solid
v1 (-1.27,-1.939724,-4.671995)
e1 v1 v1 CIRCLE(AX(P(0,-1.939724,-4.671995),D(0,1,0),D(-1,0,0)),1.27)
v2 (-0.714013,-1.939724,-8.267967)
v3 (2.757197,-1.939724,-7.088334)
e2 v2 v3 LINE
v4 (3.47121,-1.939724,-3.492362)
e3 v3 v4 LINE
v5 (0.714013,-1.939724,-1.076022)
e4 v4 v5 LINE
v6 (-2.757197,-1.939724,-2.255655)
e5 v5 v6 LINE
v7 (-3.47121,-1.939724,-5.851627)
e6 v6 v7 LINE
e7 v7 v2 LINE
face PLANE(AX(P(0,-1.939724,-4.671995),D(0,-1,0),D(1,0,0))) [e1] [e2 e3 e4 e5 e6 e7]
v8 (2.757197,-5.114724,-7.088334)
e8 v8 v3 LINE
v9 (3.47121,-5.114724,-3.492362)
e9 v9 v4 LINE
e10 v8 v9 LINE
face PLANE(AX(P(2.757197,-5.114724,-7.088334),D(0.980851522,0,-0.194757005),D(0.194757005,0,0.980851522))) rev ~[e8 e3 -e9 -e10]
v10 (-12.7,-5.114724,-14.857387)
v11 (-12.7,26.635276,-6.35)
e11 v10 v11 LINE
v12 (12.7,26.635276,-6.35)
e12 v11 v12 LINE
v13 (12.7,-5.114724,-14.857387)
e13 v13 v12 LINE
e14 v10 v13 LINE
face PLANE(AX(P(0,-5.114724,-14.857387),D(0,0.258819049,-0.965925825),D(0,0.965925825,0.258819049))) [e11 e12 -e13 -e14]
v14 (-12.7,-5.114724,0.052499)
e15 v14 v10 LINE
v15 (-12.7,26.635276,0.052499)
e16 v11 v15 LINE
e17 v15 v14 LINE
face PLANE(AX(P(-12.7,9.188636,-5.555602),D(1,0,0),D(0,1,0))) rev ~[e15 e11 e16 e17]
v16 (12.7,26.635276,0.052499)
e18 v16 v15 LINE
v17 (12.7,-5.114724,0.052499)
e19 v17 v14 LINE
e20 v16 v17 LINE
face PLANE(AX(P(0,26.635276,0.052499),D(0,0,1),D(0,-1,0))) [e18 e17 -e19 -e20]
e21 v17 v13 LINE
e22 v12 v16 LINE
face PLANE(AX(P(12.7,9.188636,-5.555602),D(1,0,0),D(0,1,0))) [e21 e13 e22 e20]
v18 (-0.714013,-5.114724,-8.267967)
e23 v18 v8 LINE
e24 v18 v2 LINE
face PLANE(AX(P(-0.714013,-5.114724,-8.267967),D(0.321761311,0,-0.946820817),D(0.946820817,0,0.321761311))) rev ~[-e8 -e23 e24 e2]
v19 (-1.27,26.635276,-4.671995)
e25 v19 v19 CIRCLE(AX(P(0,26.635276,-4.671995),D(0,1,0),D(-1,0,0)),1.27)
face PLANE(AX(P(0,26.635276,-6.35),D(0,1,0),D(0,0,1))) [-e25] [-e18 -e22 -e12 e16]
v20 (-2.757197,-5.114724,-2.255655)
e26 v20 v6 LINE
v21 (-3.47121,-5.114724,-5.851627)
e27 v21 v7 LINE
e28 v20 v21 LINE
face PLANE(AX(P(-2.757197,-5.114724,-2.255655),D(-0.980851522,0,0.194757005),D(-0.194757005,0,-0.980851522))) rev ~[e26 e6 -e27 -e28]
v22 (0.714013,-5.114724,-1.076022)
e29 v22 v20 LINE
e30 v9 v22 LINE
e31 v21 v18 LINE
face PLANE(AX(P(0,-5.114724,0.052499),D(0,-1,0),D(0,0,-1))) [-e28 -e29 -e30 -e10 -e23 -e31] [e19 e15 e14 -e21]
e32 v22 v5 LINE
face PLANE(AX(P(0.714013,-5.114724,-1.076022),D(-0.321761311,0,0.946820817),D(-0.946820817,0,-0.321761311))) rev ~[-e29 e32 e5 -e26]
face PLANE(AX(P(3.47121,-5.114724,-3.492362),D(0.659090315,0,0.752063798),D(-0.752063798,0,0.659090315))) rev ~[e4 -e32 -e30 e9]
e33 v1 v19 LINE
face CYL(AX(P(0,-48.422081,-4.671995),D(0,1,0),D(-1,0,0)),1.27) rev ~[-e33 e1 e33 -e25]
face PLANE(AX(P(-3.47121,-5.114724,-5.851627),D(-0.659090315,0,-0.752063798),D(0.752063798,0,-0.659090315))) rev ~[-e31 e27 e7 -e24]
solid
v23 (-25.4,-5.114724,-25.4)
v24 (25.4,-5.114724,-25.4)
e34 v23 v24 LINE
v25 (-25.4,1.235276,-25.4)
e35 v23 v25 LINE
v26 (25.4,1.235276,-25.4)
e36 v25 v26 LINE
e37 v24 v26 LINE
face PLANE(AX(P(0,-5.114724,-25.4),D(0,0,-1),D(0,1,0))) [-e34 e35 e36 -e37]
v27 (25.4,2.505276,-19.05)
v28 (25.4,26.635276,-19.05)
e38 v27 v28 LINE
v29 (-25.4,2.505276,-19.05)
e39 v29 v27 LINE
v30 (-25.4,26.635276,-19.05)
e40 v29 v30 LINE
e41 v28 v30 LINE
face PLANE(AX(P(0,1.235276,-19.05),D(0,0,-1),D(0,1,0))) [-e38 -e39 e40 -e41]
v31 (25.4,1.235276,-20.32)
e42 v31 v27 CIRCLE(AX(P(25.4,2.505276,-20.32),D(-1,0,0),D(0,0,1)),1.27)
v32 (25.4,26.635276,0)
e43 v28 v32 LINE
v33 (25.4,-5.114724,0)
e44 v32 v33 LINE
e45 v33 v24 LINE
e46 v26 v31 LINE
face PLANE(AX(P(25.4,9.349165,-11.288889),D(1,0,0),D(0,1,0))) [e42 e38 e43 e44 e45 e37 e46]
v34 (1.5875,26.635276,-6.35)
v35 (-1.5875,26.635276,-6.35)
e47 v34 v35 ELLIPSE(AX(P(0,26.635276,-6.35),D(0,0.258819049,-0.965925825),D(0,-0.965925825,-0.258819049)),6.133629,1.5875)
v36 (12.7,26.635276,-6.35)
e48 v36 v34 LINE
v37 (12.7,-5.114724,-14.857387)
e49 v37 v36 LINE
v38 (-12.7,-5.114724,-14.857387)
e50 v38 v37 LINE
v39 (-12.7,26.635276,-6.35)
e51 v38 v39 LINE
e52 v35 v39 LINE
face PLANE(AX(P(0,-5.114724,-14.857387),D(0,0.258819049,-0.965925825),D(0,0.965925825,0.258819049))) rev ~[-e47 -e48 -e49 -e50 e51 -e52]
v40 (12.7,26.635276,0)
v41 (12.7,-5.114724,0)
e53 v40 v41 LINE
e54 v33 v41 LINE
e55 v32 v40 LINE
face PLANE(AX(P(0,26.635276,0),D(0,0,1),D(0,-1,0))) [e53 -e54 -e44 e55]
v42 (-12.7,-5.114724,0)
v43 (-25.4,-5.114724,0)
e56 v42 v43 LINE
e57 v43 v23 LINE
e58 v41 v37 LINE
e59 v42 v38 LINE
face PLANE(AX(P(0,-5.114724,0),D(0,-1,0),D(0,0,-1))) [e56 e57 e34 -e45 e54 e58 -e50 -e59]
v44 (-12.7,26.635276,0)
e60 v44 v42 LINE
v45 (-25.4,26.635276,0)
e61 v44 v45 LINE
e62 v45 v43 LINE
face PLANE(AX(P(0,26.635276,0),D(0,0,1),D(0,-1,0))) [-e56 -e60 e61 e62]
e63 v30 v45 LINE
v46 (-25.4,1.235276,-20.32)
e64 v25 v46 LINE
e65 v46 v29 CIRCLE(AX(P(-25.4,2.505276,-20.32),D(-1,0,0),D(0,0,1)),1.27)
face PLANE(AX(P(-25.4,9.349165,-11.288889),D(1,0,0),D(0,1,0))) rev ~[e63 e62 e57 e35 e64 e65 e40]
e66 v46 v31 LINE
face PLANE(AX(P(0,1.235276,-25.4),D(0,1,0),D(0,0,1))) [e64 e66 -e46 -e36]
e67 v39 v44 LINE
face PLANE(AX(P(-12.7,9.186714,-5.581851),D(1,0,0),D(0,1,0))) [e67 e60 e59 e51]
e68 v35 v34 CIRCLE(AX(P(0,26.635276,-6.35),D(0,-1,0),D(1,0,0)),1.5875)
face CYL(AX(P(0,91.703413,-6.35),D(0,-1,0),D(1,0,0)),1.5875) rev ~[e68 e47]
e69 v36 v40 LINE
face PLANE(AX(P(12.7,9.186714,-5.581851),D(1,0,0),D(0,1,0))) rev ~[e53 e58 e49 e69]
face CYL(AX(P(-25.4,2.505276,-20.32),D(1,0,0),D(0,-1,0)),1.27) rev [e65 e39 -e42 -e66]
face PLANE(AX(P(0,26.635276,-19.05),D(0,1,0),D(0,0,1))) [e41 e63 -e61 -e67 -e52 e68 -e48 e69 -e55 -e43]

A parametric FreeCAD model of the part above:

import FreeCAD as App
import Part
import Sketcher
from FreeCAD import Vector
Q = App.Units.Quantity


def edges_at(feature, points):
    """Names of the edges that pass closest to the given points."""
    edges = feature.Shape.Edges
    near = lambda p: min(range(len(edges)), key=lambda i: edges[i].distToShape(Part.Vertex(*p))[0])
    return sorted({f"Edge{near(p) + 1}" for p in points})


def add_polygon(sketch, points):
    """Adds a closed chain of lines whose ends are joined by coincident constraints."""
    first, n = sketch.GeometryCount, len(points)
    for a, b in zip(points, points[1:] + points[:1]):
        sketch.addGeometry(Part.LineSegment(App.Vector(*a, 0), App.Vector(*b, 0)), False)
    for i in range(n):
        sketch.addConstraint(Sketcher.Constraint("Coincident", first + i, 2, first + (i + 1) % n, 1))

doc = App.newDocument("Part")
body = doc.addObject("PartDesign::Body", "Body")

# Sketch on YZ plane
sketch1 = body.newObject("Sketcher::SketchObject", "Sketch")
sketch1.AttachmentSupport = (doc.getObject("YZ_Plane"), [""])
sketch1.MapMode = "FlatFace"
add_polygon(sketch1, [(-5, 0), (-5, -25), (1, -25), (1, -19), (27, -19), (27, 0)])  # lines 0-5
sketch1.addConstraint(Sketcher.Constraint("Vertical", 0))
sketch1.addConstraint(Sketcher.Constraint("Horizontal", 1))
sketch1.addConstraint(Sketcher.Constraint("Vertical", 2))
sketch1.addConstraint(Sketcher.Constraint("Horizontal", 3))
sketch1.addConstraint(Sketcher.Constraint("Vertical", 4))
sketch1.addConstraint(Sketcher.Constraint("Horizontal", 5))
sketch1.addConstraint(Sketcher.Constraint("PointOnObject", 4, 2, -1))
sketch1.addConstraint(Sketcher.Constraint("Equal", 3, 0))
sketch1.addConstraint(Sketcher.Constraint("Equal", 1, 2))
sketch1.addConstraint(Sketcher.Constraint("DistanceX", 3, 1, 3, 2, Q("1 in")))
sketch1.addConstraint(Sketcher.Constraint("DistanceX", 1, 1, 1, 2, Q("0.25 in")))
sketch1.addConstraint(Sketcher.Constraint("DistanceX", 0, 2, -1, 1, 5.114724))
pad1 = body.newObject("PartDesign::Pad", "Pad")
pad1.Profile = sketch1
pad1.Length = Q("2 in")
pad1.Midplane = True

# Sketch on YZ plane
sketch2 = body.newObject("Sketcher::SketchObject", "Sketch001")
sketch2.AttachmentSupport = (doc.getObject("YZ_Plane"), [""])
sketch2.MapMode = "FlatFace"
add_polygon(sketch2, [(27, 0), (-5, 0), (-5, -15), (27, -6)])  # lines 0-3
sketch2.addConstraint(Sketcher.Constraint("Horizontal", 0))
sketch2.addConstraint(Sketcher.Constraint("Vertical", 1))
sketch2.addConstraint(Sketcher.Constraint("Vertical", 3))
sketch2.addConstraint(Sketcher.Constraint("PointOnObject", 0, 2, -1))
sketch2.addConstraint(Sketcher.Constraint("Angle", 2, Q("15 deg")))
sketch2.addConstraint(Sketcher.Constraint("DistanceX", 0, 2, 0, 1, Q("1.25 in")))
sketch2.addConstraint(Sketcher.Constraint("DistanceY", 3, 1, 3, 2, Q("0.25 in")))
sketch2.addConstraint(Sketcher.Constraint("DistanceX", 0, 2, -1, 1, 5.114724))
pocket1 = body.newObject("PartDesign::Pocket", "Pocket")
pocket1.Profile = sketch2
pocket1.Length = Q("1 in")
pocket1.Midplane = True

# Sketch on XZ plane
sketch3 = body.newObject("Sketcher::SketchObject", "Sketch002")
sketch3.AttachmentSupport = (doc.getObject("XZ_Plane"), [""])
sketch3.MapMode = "FlatFace"
sketch3.AttachmentOffset = App.Placement(Vector(0, 0, -26.635276), App.Rotation())
sketch3.addGeometry(Part.Circle(Vector(0, -6.3, 0), Vector(0, 0, 1), 1.6), False)
sketch3.addConstraint(Sketcher.Constraint("PointOnObject", 0, 3, -2))
sketch3.addConstraint(Sketcher.Constraint("Diameter", 0, Q("0.125 in")))
sketch3.addConstraint(Sketcher.Constraint("DistanceY", 0, 3, -1, 1, Q("0.25 in")))
doc.recompute()
hole = body.newObject("PartDesign::Hole", "Hole")
hole.Profile = sketch3
hole.ThreadType = "None"
hole.Diameter = Q("0.125 in")
hole.DepthType = "ThroughAll"
hole.Reversed = True
doc.recompute()

fillet = body.newObject("PartDesign::Fillet", "Fillet")
fillet.Base = (hole, edges_at(hole, [(0, 1.235, -19.05)]))
fillet.Radius = Q("0.05 in")
body2 = doc.addObject("PartDesign::Body", "Body001")

# Sketch on YZ plane
sketch4 = body2.newObject("Sketcher::SketchObject", "Sketch003")
sketch4.AttachmentSupport = (doc.getObject("YZ_Plane001"), [""])
sketch4.MapMode = "FlatFace"
add_polygon(sketch4, [(-5, 0), (-5, -15), (27, -6), (27, 0)])  # lines 0-3
sketch4.addConstraint(Sketcher.Constraint("Vertical", 0))
sketch4.addConstraint(Sketcher.Constraint("Vertical", 2))
sketch4.addConstraint(Sketcher.Constraint("Horizontal", 3))
sketch4.addConstraint(Sketcher.Constraint("Angle", 1, Q("15 deg")))
sketch4.addConstraint(Sketcher.Constraint("DistanceX", 3, 2, 3, 1, Q("1.25 in")))
sketch4.addConstraint(Sketcher.Constraint("DistanceY", 1, 2, -1, 1, Q("0.25 in")))
sketch4.addConstraint(Sketcher.Constraint("DistanceY", 2, 1, 2, 2, 6.402499))
sketch4.addConstraint(Sketcher.Constraint("DistanceX", 0, 2, -1, 1, 5.114724))
pad2 = body2.newObject("PartDesign::Pad", "Pad001")
pad2.Profile = sketch4
pad2.Length = Q("1 in")
pad2.Midplane = True

# Sketch on XZ plane
sketch5 = body2.newObject("Sketcher::SketchObject", "Sketch004")
sketch5.AttachmentSupport = (doc.getObject("XZ_Plane001"), [""])
sketch5.MapMode = "FlatFace"
sketch5.AttachmentOffset = App.Placement(Vector(0, 0, 5.114724), App.Rotation())
sketch5.addGeometry(Part.Circle(Vector(0, -4.7, 0), Vector(0, 0, 1), 1.3), False)
sketch5.addConstraint(Sketcher.Constraint("PointOnObject", 0, 3, -2))
sketch5.addConstraint(Sketcher.Constraint("Diameter", 0, Q("0.1 in")))
sketch5.addConstraint(Sketcher.Constraint("DistanceY", 0, 3, -1, 1, 4.671995))
doc.recompute()
hole2 = body2.newObject("PartDesign::Hole", "Hole001")
hole2.Profile = sketch5
hole2.ThreadType = "None"
hole2.Diameter = Q("0.1 in")
hole2.DepthType = "ThroughAll"

# Sketch on XZ plane
sketch6 = body2.newObject("Sketcher::SketchObject", "Sketch005")
sketch6.AttachmentSupport = (doc.getObject("XZ_Plane001"), [""])
sketch6.MapMode = "FlatFace"
sketch6.AttachmentOffset = App.Placement(Vector(0, 0, 5.114724), App.Rotation())
add_polygon(sketch6, [(3.5, -3.5), (0.7, -1.1), (-2.8, -2.3), (-3.5, -5.9), (-0.7, -8.3), (2.8, -7.1)])  # lines 0-5
sketch6.addConstraint(Sketcher.Constraint("Parallel", 0, 3))
sketch6.addConstraint(Sketcher.Constraint("Parallel", 1, 4))
sketch6.addConstraint(Sketcher.Constraint("Parallel", 2, 5))
sketch6.addConstraint(Sketcher.Constraint("Equal", 0, 1))
sketch6.addConstraint(Sketcher.Constraint("Equal", 1, 2))
sketch6.addConstraint(Sketcher.Constraint("Equal", 2, 3))
sketch6.addConstraint(Sketcher.Constraint("DistanceX", 2, 2, -1, 1, 3.47121))
sketch6.addConstraint(Sketcher.Constraint("DistanceX", -1, 1, 5, 2, 3.47121))
sketch6.addConstraint(Sketcher.Constraint("DistanceY", 5, 2, -1, 1, 3.492362))
sketch6.addConstraint(Sketcher.Constraint("DistanceX", 1, 2, 0, 2, 3.47121))
sketch6.addConstraint(Sketcher.Constraint("DistanceY", 2, 2, 1, 2, 3.595972))
sketch6.addConstraint(Sketcher.Constraint("DistanceY", 3, 2, 2, 2, 2.41634))
pocket2 = body2.newObject("PartDesign::Pocket", "Pocket001")
pocket2.Profile = sketch6
pocket2.Length = Q("0.125 in")

doc.recompute()
